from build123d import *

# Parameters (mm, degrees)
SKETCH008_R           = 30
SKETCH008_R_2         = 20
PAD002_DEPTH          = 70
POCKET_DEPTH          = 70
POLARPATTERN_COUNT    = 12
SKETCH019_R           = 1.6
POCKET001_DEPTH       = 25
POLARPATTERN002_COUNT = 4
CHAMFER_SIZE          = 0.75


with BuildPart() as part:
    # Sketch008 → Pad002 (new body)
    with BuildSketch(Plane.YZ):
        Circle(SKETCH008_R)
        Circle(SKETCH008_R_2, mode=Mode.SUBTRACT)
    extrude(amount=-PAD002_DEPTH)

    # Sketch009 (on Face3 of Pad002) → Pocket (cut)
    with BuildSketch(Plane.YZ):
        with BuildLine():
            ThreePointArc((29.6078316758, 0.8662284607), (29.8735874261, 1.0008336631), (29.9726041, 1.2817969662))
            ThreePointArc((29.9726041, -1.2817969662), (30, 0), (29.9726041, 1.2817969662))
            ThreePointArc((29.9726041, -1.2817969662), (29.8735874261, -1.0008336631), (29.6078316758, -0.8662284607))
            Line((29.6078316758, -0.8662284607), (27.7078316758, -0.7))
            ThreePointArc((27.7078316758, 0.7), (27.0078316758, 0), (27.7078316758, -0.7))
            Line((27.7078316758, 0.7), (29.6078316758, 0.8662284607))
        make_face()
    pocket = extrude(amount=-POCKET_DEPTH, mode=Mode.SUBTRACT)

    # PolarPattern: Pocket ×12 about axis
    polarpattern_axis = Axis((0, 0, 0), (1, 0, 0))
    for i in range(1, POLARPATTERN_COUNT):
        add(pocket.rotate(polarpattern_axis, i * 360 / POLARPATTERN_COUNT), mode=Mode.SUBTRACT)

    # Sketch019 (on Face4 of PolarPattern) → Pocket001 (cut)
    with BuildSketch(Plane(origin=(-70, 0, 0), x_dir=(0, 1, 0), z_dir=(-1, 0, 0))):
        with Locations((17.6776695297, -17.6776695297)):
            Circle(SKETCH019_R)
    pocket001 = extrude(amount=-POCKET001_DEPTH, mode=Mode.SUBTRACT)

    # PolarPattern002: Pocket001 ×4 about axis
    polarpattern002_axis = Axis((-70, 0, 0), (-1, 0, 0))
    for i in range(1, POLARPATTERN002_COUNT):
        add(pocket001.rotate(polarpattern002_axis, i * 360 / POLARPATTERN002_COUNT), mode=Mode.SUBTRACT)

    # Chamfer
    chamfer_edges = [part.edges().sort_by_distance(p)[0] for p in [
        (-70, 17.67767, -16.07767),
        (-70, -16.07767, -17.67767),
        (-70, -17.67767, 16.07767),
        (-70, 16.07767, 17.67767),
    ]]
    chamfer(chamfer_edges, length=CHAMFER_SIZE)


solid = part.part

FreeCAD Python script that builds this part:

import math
import FreeCAD as App
import Part
import Sketcher

V = App.Vector
Q = App.Units.Quantity


def edges_at(feature, points):
    """Names of the edges that pass closest to the given points."""
    edges = feature.Shape.Edges
    near = lambda p: min(range(len(edges)), key=lambda i: edges[i].distToShape(Part.Vertex(*p))[0])
    return sorted({f"Edge{near(p) + 1}" for p in points})

doc = App.newDocument("Part")
params = doc.addObject("Spreadsheet::Sheet", "Params")
for row, (alias, value) in enumerate([
    ("sketch1_diameter", "60 mm"),
    ("sketch1_diameter2", "40 mm"),
    ("pad1_length", "70 mm"),
    ("sketch2_radius", "30 mm"),
    ("sketch2_radius2", "0.4 mm"),
    ("sketch2_radius3", "0.7 mm"),
    ("pocket1_length", "70 mm"),
    ("sketch3_diameter", "3.2 mm"),
    ("pocket2_length", "25 mm"),
    ("chamfer_size", "0.75 mm"),
], start=1):
    params.set(f"A{row}", alias)
    params.set(f"B{row}", "=" + value)
    params.setAlias(f"B{row}", alias)

body = doc.addObject("PartDesign::Body", "Body")

sketch1 = body.newObject("Sketcher::SketchObject", "Sketch")
sketch1.AttachmentSupport = (doc.getObject("YZ_Plane"), [""])
sketch1.MapMode = "FlatFace"
sketch1.addGeometry(Part.Circle(V(0, 0, 0), V(0, 0, 1), 30), False)
sketch1.addGeometry(Part.Circle(V(0, 0, 0), V(0, 0, 1), 20), False)
sketch1.addConstraint(Sketcher.Constraint("Coincident", 0, 3, -1, 1))
sketch1.addConstraint(Sketcher.Constraint("Coincident", 1, 3, -1, 1))
sketch1.addConstraint(Sketcher.Constraint("Diameter", 0, 60.0))
sketch1.addConstraint(Sketcher.Constraint("Diameter", 1, 40.0))
sketch1.setExpression("Constraints[2]", "Params.sketch1_diameter")
sketch1.setExpression("Constraints[3]", "Params.sketch1_diameter2")
pad1 = body.newObject("PartDesign::Pad", "Pad")
pad1.Profile = sketch1
pad1.setExpression("Length", "Params.pad1_length")
pad1.Reversed = True

sketch2 = body.newObject("Sketcher::SketchObject", "Sketch001")
sketch2.AttachmentSupport = (doc.getObject("YZ_Plane"), [""])
sketch2.MapMode = "FlatFace"
sketch2.addGeometry(Part.ArcOfCircle(Part.Circle(V(29.57, 1.26, 0), V(0, 0, 1), 0.4), math.radians(-85), math.radians(2)), False)
sketch2.addGeometry(Part.LineSegment(V(29.61, 0.87, 0), V(27.71, 0.7, 0)), False)
sketch2.addGeometry(Part.ArcOfCircle(Part.Circle(V(27.71, 0, 0), V(0, 0, 1), 0.7), math.radians(90), math.radians(270)), False)
sketch2.addGeometry(Part.LineSegment(V(27.71, -0.7, 0), V(29.61, -0.87, 0)), False)
sketch2.addGeometry(Part.ArcOfCircle(Part.Circle(V(29.57, -1.26, 0), V(0, 0, 1), 0.4), math.radians(-2), math.radians(85)), False)
sketch2.addGeometry(Part.ArcOfCircle(Part.Circle(V(0, 0, 0), V(0, 0, 1), 30), math.radians(-2.45), math.radians(2.45)), False)
sketch2.addConstraint(Sketcher.Constraint("Tangent", 0, 1, 1, 1))
sketch2.addConstraint(Sketcher.Constraint("Coincident", 1, 2, 2, 1))
sketch2.addConstraint(Sketcher.Constraint("Coincident", 2, 2, 3, 1))
sketch2.addConstraint(Sketcher.Constraint("Tangent", 3, 2, 4, 2))
sketch2.addConstraint(Sketcher.Constraint("Tangent", 4, 1, 5, 1))
sketch2.addConstraint(Sketcher.Constraint("Tangent", 5, 2, 0, 2))
sketch2.addConstraint(Sketcher.Constraint("Coincident", 5, 3, -1, 1))
sketch2.addConstraint(Sketcher.Constraint("Equal", 0, 4))
sketch2.addConstraint(Sketcher.Constraint("Symmetric", 1, 2, 2, 2, -1))
sketch2.addConstraint(Sketcher.Constraint("Vertical", 0, 3, 4, 3))
sketch2.addConstraint(Sketcher.Constraint("Vertical", 2, 3, 1, 2))
sketch2.addConstraint(Sketcher.Constraint("Radius", 5, 30.0))
sketch2.addConstraint(Sketcher.Constraint("Radius", 0, 0.4))
sketch2.addConstraint(Sketcher.Constraint("Radius", 2, 0.7))
sketch2.addConstraint(Sketcher.Constraint("Angle", 1, Q("-175 deg")))
sketch2.addConstraint(Sketcher.Constraint("DistanceX", 2, 3, 0, 1, 1.9))
sketch2.setExpression("Constraints[11]", "Params.sketch2_radius")
sketch2.setExpression("Constraints[12]", "Params.sketch2_radius2")
sketch2.setExpression("Constraints[13]", "Params.sketch2_radius3")
pocket1 = body.newObject("PartDesign::Pocket", "Pocket")
pocket1.Profile = sketch2
pocket1.setExpression("Length", "Params.pocket1_length")
doc.recompute()

polarpattern = body.newObject("PartDesign::PolarPattern", "PolarPattern")
polarpattern.Originals = [pocket1]
polarpattern.Axis = (doc.getObject("X_Axis"), [""])
polarpattern.Angle = 360
polarpattern.Occurrences = 12
body.Tip = polarpattern

sketch3 = body.newObject("Sketcher::SketchObject", "Sketch002")
sketch3.AttachmentSupport = (doc.getObject("YZ_Plane"), [""])
sketch3.MapMode = "FlatFace"
sketch3.AttachmentOffset = App.Placement(V(0, 0, -70), App.Rotation())
sketch3.addGeometry(Part.Circle(V(17.7, 17.7, 0), V(0, 0, 1), 1.6), False)
sketch3.addConstraint(Sketcher.Constraint("Diameter", 0, 3.2))
sketch3.addConstraint(Sketcher.Constraint("DistanceX", -1, 1, 0, 3, 17.67767))
sketch3.addConstraint(Sketcher.Constraint("DistanceY", -1, 1, 0, 3, 17.67767))
sketch3.setExpression("Constraints[0]", "Params.sketch3_diameter")
pocket2 = body.newObject("PartDesign::Pocket", "Pocket001")
pocket2.Profile = sketch3
pocket2.setExpression("Length", "Params.pocket2_length")
pocket2.Reversed = True
doc.recompute()

polarpattern2 = body.newObject("PartDesign::PolarPattern", "PolarPattern001")
polarpattern2.Originals = [pocket2]
polarpattern2.Axis = (doc.getObject("X_Axis"), [""])
polarpattern2.Angle = 360
polarpattern2.Occurrences = 4
body.Tip = polarpattern2
doc.recompute()

chamfer = body.newObject("PartDesign::Chamfer", "Chamfer")
chamfer.Base = (polarpattern2, edges_at(polarpattern2, [
    (-70, 17.678, -16.078),
    (-70, -16.078, -17.678),
    (-70, -17.678, 16.078),
    (-70, 16.078, 17.678),
]))
chamfer.setExpression("Size", "Params.chamfer_size")

doc.recompute()
